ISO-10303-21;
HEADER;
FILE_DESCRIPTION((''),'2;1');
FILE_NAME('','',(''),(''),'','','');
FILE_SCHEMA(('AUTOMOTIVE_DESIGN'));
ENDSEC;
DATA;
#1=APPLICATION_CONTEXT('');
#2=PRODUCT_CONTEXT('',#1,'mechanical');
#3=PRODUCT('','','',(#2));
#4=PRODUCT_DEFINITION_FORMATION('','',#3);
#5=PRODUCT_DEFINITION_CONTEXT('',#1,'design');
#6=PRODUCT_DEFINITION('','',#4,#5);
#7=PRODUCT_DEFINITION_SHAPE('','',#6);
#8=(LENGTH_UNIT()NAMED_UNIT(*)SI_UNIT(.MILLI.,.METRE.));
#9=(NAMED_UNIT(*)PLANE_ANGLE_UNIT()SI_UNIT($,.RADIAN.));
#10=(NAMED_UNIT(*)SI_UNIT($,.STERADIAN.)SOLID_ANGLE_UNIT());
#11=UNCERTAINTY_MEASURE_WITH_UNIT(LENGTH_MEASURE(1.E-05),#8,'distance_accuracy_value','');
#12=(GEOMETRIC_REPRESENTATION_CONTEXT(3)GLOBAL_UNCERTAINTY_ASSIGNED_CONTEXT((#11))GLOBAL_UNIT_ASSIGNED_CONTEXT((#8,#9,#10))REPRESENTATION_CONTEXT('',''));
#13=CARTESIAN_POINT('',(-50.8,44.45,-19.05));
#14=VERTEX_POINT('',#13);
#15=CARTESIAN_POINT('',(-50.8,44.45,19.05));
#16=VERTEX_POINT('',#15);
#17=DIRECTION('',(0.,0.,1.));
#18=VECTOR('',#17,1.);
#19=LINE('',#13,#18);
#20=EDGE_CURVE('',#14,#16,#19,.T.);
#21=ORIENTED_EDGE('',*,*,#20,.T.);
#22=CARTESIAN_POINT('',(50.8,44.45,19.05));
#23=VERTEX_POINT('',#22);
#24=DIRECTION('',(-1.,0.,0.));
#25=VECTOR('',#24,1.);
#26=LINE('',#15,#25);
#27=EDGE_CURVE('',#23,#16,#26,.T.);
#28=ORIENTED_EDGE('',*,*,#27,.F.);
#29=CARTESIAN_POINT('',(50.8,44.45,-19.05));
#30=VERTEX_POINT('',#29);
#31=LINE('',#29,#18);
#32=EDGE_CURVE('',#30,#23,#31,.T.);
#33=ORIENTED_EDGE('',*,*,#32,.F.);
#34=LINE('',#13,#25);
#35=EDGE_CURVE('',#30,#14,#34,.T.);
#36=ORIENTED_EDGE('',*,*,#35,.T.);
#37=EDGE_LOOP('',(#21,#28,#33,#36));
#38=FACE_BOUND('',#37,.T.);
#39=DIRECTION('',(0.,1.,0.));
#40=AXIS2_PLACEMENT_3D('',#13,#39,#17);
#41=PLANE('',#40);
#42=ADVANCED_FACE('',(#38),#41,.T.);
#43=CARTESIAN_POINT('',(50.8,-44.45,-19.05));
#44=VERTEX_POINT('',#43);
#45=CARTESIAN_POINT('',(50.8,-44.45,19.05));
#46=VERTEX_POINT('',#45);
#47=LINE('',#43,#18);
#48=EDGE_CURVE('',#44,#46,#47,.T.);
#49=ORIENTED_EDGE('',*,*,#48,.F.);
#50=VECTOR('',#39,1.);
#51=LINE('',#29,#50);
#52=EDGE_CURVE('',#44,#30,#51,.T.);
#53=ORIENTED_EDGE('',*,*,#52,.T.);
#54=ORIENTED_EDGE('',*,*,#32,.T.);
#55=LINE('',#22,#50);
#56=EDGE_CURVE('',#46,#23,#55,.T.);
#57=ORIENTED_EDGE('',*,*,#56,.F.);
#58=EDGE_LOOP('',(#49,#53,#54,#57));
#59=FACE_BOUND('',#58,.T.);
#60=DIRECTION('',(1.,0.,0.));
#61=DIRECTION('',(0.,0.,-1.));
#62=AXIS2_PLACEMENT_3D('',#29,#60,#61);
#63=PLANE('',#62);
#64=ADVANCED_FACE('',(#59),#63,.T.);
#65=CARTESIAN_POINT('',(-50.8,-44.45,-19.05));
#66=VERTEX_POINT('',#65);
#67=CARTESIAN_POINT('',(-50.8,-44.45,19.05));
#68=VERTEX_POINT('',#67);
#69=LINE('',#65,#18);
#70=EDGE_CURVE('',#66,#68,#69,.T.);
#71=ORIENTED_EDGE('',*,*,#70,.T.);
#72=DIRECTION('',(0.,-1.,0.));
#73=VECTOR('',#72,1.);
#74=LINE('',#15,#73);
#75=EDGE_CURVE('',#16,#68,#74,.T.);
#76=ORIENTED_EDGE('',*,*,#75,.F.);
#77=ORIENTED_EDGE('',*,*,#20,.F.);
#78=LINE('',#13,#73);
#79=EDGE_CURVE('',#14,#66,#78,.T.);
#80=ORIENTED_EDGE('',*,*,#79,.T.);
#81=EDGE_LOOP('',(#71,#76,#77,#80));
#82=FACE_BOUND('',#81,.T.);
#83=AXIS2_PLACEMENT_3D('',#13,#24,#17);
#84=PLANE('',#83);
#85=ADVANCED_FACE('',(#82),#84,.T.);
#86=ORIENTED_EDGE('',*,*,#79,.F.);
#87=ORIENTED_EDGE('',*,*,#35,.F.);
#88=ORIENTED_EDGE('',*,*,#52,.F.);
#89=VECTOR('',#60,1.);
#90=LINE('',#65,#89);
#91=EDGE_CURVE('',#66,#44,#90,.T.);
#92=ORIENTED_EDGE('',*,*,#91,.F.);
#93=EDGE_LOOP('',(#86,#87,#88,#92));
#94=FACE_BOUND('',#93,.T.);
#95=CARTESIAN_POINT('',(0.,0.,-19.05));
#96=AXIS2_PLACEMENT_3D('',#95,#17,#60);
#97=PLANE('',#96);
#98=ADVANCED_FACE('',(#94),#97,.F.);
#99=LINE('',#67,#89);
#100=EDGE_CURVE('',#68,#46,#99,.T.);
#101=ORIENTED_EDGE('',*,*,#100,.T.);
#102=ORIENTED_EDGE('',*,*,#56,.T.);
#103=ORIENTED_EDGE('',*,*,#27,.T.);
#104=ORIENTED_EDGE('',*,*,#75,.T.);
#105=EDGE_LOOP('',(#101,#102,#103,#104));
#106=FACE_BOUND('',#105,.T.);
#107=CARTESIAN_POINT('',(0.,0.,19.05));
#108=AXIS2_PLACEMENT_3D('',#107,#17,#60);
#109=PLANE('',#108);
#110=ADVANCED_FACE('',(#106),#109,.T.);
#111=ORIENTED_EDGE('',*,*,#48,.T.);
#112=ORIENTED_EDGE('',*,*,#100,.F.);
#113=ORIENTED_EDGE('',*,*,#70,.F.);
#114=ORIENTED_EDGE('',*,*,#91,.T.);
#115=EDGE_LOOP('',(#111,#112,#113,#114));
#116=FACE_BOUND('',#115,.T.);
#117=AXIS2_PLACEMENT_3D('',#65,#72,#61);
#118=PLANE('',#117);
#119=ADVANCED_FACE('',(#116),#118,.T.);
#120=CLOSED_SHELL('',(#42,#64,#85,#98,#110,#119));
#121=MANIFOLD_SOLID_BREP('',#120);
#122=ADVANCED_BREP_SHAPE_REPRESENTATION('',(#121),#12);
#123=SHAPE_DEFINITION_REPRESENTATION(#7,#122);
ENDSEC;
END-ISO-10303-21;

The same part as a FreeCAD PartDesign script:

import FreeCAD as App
import Part
import Sketcher
from FreeCAD import Vector
Q = App.Units.Quantity

doc = App.newDocument("Part")
body = doc.addObject("PartDesign::Body", "Body")

sketch1 = doc.addObject("Sketcher::SketchObject", "Sketch")
body.addObject(sketch1)
sketch1.AttachmentSupport = (doc.XY_Plane, [""])
sketch1.MapMode = "FlatFace"
sketch1.addGeometry([
    Part.LineSegment(Vector(-51, 44, 0), Vector(-51, -44, 0)),
    Part.LineSegment(Vector(-51, -44, 0), Vector(51, -44, 0)),
    Part.LineSegment(Vector(51, -44, 0), Vector(51, 44, 0)),
    Part.LineSegment(Vector(51, 44, 0), Vector(-51, 44, 0)),
], False)
sketch1.addConstraint([
    Sketcher.Constraint("Coincident", 0, 2, 1, 1),
    Sketcher.Constraint("Coincident", 1, 2, 2, 1),
    Sketcher.Constraint("Coincident", 2, 2, 3, 1),
    Sketcher.Constraint("Coincident", 3, 2, 0, 1),
    Sketcher.Constraint("Vertical", 0),
    Sketcher.Constraint("Horizontal", 1),
    Sketcher.Constraint("Vertical", 2),
    Sketcher.Constraint("Horizontal", 3),
    Sketcher.Constraint("Symmetric", 0, 2, 2, 2, -1, 1),
    Sketcher.Constraint("DistanceX", 1, 1, 1, 2, Q("4 in")),
    Sketcher.Constraint("DistanceY", 0, 2, 0, 1, Q("3.5 in")),
])
pad1 = doc.addObject("PartDesign::Pad", "Pad")
body.addObject(pad1)
pad1.Profile = sketch1
pad1.Type = "TwoLengths"
pad1.Length = Q("0.75 in")
pad1.Length2 = Q("0.75 in")

doc.recompute()
